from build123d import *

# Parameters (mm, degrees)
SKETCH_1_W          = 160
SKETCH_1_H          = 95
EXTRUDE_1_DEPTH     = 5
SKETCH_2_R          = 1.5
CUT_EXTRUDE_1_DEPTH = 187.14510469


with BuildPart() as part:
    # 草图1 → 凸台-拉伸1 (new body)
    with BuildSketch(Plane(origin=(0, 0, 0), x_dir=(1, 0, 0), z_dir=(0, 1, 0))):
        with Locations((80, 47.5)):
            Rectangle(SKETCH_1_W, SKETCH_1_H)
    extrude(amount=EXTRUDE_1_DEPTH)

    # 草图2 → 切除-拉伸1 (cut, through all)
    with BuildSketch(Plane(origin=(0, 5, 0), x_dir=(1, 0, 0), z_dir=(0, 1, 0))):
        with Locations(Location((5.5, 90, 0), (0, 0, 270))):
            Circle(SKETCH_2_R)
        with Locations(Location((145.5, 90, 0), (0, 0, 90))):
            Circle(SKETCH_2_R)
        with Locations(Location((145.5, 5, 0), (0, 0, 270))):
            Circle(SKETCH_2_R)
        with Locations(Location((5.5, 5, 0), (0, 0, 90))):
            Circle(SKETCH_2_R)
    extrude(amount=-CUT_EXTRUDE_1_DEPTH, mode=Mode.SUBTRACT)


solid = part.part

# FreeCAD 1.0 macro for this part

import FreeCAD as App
import Part
import Sketcher


def add_polygon(sketch, points):
    """Adds a closed chain of lines whose ends are joined by coincident constraints."""
    first, n = sketch.GeometryCount, len(points)
    for a, b in zip(points, points[1:] + points[:1]):
        sketch.addGeometry(Part.LineSegment(App.Vector(*a, 0), App.Vector(*b, 0)), False)
    for i in range(n):
        sketch.addConstraint(Sketcher.Constraint("Coincident", first + i, 2, first + (i + 1) % n, 1))

doc = App.newDocument("Part")
body = doc.addObject("PartDesign::Body", "Body")

# Sketch on XZ plane
sketch1 = body.newObject("Sketcher::SketchObject", "Sketch")
sketch1.AttachmentSupport = (doc.getObject("XZ_Plane"), [""])
sketch1.MapMode = "FlatFace"
add_polygon(sketch1, [(0, -95), (0, 0), (160, 0), (160, -95)])  # lines 0-3
sketch1.addConstraint(Sketcher.Constraint("Vertical", 0))
sketch1.addConstraint(Sketcher.Constraint("Horizontal", 1))
sketch1.addConstraint(Sketcher.Constraint("Vertical", 2))
sketch1.addConstraint(Sketcher.Constraint("Horizontal", 3))
sketch1.addConstraint(Sketcher.Constraint("Coincident", 0, 2, -1, 1))
sketch1.addConstraint(Sketcher.Constraint("DistanceX", 1, 1, 1, 2, 160.0))
sketch1.addConstraint(Sketcher.Constraint("DistanceY", 0, 1, 0, 2, 95.0))
pad1 = body.newObject("PartDesign::Pad", "Pad")
pad1.Profile = sketch1
pad1.Length = 5
pad1.Reversed = True

# Sketch on XZ plane
sketch2 = body.newObject("Sketcher::SketchObject", "Sketch001")
sketch2.AttachmentSupport = (doc.getObject("XZ_Plane"), [""])
sketch2.MapMode = "FlatFace"
sketch2.AttachmentOffset = App.Placement(App.Vector(0, 0, -5), App.Rotation())
sketch2.addGeometry(Part.Circle(App.Vector(5.5, -90, 0), App.Vector(0, 0, 1), 1.5), False)
sketch2.addGeometry(Part.Circle(App.Vector(145.5, -90, 0), App.Vector(0, 0, 1), 1.5), False)
sketch2.addGeometry(Part.Circle(App.Vector(145.5, -5, 0), App.Vector(0, 0, 1), 1.5), False)
sketch2.addGeometry(Part.Circle(App.Vector(5.5, -5, 0), App.Vector(0, 0, 1), 1.5), False)
sketch2.addConstraint(Sketcher.Constraint("Equal", 0, 1))
sketch2.addConstraint(Sketcher.Constraint("Equal", 1, 2))
sketch2.addConstraint(Sketcher.Constraint("Equal", 2, 3))
sketch2.addConstraint(Sketcher.Constraint("Horizontal", 0, 3, 1, 3))
sketch2.addConstraint(Sketcher.Constraint("Horizontal", 2, 3, 3, 3))
sketch2.addConstraint(Sketcher.Constraint("Vertical", 1, 3, 2, 3))
sketch2.addConstraint(Sketcher.Constraint("Vertical", 0, 3, 3, 3))
sketch2.addConstraint(Sketcher.Constraint("Diameter", 0, 3.0))
sketch2.addConstraint(Sketcher.Constraint("DistanceY", 0, 3, -1, 1, 90.0))
sketch2.addConstraint(Sketcher.Constraint("DistanceY", 2, 3, -1, 1, 5.0))
sketch2.addConstraint(Sketcher.Constraint("DistanceX", 0, 3, 1, 3, 140.0))
sketch2.addConstraint(Sketcher.Constraint("DistanceX", -1, 1, 0, 3, 5.5))
pocket1 = body.newObject("PartDesign::Pocket", "Pocket")
pocket1.Profile = sketch2
pocket1.Type = "ThroughAll"
pocket1.Reversed = True

doc.recompute()
